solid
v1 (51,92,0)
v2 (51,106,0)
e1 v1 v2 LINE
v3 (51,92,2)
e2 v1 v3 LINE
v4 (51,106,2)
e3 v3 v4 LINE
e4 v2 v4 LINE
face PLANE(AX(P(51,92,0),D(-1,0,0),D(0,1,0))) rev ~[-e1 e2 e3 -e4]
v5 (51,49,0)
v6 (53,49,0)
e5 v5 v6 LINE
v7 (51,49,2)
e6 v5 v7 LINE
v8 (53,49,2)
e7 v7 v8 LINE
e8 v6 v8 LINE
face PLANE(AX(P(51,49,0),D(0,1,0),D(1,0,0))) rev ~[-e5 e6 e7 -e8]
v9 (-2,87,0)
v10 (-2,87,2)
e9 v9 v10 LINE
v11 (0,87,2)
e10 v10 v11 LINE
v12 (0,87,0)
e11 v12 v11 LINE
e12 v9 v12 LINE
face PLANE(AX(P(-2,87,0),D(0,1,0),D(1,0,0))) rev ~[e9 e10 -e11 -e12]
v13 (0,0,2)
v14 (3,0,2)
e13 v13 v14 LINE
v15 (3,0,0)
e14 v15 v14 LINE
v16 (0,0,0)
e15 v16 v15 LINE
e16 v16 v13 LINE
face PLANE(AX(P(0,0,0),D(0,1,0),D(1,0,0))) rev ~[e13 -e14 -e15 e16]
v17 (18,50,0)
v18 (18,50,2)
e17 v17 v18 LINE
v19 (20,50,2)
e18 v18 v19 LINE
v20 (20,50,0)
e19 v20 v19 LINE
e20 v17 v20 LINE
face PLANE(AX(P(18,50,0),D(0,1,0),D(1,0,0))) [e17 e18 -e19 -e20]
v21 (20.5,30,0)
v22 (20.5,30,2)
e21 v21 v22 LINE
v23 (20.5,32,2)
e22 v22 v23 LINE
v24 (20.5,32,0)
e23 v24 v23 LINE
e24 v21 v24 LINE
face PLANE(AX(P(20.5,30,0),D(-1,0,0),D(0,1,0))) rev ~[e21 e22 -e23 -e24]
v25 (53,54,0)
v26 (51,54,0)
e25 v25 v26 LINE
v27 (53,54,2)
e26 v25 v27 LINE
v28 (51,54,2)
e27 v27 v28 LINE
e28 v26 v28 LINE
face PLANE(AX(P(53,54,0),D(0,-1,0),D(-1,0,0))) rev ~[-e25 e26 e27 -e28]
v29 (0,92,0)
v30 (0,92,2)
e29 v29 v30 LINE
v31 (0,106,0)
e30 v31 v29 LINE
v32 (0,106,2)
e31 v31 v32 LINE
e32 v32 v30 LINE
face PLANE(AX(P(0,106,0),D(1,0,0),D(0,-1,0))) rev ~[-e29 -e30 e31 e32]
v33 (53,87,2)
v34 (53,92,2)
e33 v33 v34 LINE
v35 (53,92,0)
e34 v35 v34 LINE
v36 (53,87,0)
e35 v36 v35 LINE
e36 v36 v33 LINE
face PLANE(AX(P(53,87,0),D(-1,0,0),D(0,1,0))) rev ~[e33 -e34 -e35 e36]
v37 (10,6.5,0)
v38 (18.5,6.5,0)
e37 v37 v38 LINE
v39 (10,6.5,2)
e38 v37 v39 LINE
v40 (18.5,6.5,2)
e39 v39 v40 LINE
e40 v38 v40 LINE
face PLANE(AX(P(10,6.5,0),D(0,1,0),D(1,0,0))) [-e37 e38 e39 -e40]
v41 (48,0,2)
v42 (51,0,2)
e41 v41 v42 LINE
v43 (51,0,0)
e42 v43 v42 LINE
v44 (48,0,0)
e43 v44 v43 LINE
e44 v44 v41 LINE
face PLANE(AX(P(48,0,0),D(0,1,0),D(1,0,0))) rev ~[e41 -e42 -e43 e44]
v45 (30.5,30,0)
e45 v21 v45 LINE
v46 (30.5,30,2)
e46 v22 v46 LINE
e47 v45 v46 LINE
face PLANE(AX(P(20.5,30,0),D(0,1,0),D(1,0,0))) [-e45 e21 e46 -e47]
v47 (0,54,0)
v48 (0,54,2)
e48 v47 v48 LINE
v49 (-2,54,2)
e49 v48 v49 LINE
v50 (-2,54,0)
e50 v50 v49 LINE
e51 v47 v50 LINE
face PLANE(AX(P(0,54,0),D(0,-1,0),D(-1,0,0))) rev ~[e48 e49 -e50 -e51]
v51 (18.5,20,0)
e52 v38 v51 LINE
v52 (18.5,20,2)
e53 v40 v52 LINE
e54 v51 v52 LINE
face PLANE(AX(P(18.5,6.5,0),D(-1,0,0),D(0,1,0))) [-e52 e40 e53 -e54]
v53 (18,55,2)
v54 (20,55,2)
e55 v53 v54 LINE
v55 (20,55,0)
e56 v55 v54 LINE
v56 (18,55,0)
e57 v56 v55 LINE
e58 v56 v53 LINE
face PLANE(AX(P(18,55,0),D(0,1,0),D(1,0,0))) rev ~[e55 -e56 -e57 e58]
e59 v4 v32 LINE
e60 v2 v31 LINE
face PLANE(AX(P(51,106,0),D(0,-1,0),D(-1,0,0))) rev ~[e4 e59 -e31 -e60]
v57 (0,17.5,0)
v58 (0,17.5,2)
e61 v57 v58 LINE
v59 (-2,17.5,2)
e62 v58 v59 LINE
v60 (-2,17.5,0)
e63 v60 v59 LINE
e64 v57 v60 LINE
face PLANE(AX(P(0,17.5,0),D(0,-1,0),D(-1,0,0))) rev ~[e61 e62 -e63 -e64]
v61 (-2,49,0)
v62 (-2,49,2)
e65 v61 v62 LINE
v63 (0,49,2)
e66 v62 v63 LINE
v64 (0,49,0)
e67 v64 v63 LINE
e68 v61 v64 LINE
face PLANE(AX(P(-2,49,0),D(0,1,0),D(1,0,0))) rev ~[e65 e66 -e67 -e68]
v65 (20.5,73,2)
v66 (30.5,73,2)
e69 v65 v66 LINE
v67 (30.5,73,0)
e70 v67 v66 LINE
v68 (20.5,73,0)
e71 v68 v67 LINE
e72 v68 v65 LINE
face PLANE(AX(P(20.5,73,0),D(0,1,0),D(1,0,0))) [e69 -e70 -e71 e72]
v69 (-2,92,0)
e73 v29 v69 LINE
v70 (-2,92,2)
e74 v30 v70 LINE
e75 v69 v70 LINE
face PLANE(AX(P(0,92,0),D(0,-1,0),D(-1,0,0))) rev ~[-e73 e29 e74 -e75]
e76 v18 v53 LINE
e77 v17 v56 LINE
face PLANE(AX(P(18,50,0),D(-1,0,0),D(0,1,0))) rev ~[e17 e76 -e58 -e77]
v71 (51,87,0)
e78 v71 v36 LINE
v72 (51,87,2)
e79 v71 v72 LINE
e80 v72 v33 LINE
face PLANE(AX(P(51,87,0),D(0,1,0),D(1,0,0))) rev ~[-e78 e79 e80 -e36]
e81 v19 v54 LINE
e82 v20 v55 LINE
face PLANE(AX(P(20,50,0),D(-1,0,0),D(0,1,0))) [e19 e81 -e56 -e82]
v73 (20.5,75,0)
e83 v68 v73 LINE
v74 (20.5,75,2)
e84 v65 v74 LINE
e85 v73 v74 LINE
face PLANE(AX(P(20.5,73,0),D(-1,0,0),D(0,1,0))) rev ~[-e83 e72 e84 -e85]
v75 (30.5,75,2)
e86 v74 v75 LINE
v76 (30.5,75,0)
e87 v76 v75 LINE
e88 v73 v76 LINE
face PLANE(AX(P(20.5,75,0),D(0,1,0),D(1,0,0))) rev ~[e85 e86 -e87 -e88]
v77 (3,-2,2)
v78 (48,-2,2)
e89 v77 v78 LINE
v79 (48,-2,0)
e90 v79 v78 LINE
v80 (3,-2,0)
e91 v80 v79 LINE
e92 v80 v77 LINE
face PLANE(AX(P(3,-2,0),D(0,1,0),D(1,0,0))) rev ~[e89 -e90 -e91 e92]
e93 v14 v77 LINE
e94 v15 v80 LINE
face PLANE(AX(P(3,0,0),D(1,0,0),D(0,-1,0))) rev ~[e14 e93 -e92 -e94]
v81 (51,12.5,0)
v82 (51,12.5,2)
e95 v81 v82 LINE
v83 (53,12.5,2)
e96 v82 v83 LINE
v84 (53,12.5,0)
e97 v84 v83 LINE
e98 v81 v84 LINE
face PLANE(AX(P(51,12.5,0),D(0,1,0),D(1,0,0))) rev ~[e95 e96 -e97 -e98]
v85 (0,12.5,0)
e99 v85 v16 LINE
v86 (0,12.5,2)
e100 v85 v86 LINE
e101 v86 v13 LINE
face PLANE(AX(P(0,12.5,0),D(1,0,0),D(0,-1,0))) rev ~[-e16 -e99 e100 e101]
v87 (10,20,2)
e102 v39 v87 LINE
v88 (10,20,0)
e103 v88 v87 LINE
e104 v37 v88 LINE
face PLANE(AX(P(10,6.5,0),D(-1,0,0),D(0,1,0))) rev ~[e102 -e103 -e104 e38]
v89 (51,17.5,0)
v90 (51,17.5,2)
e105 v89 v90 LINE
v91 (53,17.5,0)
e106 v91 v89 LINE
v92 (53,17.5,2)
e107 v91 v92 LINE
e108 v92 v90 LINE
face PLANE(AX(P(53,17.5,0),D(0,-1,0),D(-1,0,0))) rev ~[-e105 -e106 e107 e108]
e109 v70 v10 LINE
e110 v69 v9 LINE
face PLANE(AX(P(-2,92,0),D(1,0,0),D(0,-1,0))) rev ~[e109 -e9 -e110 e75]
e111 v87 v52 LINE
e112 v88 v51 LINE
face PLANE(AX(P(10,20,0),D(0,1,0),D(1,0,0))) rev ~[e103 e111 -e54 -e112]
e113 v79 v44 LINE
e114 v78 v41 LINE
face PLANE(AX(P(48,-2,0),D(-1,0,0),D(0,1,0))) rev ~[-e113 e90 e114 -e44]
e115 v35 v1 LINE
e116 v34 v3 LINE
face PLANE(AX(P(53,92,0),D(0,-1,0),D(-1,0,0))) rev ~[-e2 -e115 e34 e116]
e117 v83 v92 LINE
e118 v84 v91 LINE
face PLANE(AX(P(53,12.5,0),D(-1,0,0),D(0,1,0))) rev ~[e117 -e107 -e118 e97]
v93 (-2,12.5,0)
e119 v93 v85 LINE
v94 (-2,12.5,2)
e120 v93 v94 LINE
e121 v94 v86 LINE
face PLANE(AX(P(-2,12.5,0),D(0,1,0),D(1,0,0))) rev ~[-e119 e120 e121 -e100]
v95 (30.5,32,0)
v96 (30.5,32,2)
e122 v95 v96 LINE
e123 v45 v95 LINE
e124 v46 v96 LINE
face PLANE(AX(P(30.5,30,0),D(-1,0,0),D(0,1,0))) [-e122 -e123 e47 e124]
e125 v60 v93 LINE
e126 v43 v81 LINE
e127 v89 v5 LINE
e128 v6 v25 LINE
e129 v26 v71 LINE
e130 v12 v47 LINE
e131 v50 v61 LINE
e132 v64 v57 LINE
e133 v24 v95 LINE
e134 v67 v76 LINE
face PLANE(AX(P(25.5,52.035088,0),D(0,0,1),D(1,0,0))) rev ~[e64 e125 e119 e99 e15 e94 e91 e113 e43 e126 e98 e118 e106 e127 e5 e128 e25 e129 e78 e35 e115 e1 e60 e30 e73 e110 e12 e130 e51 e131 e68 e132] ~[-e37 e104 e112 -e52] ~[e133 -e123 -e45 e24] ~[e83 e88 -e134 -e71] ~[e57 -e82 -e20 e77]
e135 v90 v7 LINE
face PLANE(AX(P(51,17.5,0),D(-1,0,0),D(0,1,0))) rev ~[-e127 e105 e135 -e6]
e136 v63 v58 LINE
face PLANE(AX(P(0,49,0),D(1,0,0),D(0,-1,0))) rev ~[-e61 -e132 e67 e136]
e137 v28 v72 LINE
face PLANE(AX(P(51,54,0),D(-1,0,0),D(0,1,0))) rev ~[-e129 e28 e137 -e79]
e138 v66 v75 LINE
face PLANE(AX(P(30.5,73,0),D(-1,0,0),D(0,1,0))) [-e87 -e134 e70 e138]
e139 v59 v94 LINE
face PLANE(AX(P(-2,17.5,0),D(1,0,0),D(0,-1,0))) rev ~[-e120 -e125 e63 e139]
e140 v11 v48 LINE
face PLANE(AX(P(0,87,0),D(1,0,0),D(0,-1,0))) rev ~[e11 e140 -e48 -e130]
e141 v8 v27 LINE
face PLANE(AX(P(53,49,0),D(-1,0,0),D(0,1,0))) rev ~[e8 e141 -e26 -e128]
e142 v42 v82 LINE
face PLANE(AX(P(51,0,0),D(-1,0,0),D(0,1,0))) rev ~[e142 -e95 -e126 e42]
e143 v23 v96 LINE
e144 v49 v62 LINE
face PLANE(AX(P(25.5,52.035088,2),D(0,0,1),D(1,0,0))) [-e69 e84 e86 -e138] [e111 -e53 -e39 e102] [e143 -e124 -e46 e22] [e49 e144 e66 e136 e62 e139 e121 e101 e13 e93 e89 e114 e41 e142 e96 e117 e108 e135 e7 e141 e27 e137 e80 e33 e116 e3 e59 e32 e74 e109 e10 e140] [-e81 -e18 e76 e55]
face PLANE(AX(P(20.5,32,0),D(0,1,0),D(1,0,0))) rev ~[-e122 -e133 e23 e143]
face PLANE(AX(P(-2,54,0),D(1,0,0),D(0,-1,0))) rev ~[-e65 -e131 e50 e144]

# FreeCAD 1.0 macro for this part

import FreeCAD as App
import Part
import Sketcher

V = App.Vector


def add_polygon(sketch, points):
    """Adds a closed chain of lines whose ends are joined by coincident constraints."""
    first, n = sketch.GeometryCount, len(points)
    for a, b in zip(points, points[1:] + points[:1]):
        sketch.addGeometry(Part.LineSegment(App.Vector(*a, 0), App.Vector(*b, 0)), False)
    for i in range(n):
        sketch.addConstraint(Sketcher.Constraint("Coincident", first + i, 2, first + (i + 1) % n, 1))

doc = App.newDocument("Part")
body = doc.addObject("PartDesign::Body", "Body")

sketch1 = doc.addObject("Sketcher::SketchObject", "Sketch")
body.addObject(sketch1)
sketch1.AttachmentSupport = (doc.XY_Plane, [""])
sketch1.MapMode = "FlatFace"
add_polygon(sketch1, [(0, 0), (3, 0), (3, -2), (48, -2), (48, 0), (51, 0), (51, 12.5), (53, 12.5), (53, 17.5), (51, 17.5), (51, 49), (53, 49), (53, 54), (51, 54), (51, 87), (53, 87), (53, 92), (51, 92), (51, 106), (0, 106), (0, 92), (-2, 92), (-2, 87), (0, 87), (0, 54), (-2, 54), (-2, 49), (0, 49), (0, 17.5), (-2, 17.5), (-2, 12.5), (0, 12.5)])
add_polygon(sketch1, [(18.5, 6.5), (10, 6.5), (10, 20), (18.5, 20)])
add_polygon(sketch1, [(30.5, 30), (20.5, 30), (20.5, 32), (30.5, 32)])
add_polygon(sketch1, [(20, 50), (18, 50), (18, 55), (20, 55)])
add_polygon(sketch1, [(30.5, 73), (20.5, 73), (20.5, 75), (30.5, 75)])
sketch1.addConstraint(Sketcher.Constraint("Horizontal", 0))
sketch1.addConstraint(Sketcher.Constraint("Vertical", 1))
sketch1.addConstraint(Sketcher.Constraint("Horizontal", 2))
sketch1.addConstraint(Sketcher.Constraint("Vertical", 3))
sketch1.addConstraint(Sketcher.Constraint("Horizontal", 4))
sketch1.addConstraint(Sketcher.Constraint("Vertical", 5))
sketch1.addConstraint(Sketcher.Constraint("Horizontal", 6))
sketch1.addConstraint(Sketcher.Constraint("Vertical", 7))
sketch1.addConstraint(Sketcher.Constraint("Horizontal", 8))
sketch1.addConstraint(Sketcher.Constraint("Vertical", 9))
sketch1.addConstraint(Sketcher.Constraint("Horizontal", 10))
sketch1.addConstraint(Sketcher.Constraint("Vertical", 11))
sketch1.addConstraint(Sketcher.Constraint("Horizontal", 12))
sketch1.addConstraint(Sketcher.Constraint("Vertical", 13))
sketch1.addConstraint(Sketcher.Constraint("Horizontal", 14))
sketch1.addConstraint(Sketcher.Constraint("Vertical", 15))
sketch1.addConstraint(Sketcher.Constraint("Horizontal", 16))
sketch1.addConstraint(Sketcher.Constraint("Vertical", 17))
sketch1.addConstraint(Sketcher.Constraint("Horizontal", 18))
sketch1.addConstraint(Sketcher.Constraint("Vertical", 19))
sketch1.addConstraint(Sketcher.Constraint("Horizontal", 20))
sketch1.addConstraint(Sketcher.Constraint("Vertical", 21))
sketch1.addConstraint(Sketcher.Constraint("Horizontal", 22))
sketch1.addConstraint(Sketcher.Constraint("Vertical", 23))
sketch1.addConstraint(Sketcher.Constraint("Horizontal", 24))
sketch1.addConstraint(Sketcher.Constraint("Vertical", 25))
sketch1.addConstraint(Sketcher.Constraint("Horizontal", 26))
sketch1.addConstraint(Sketcher.Constraint("Vertical", 27))
sketch1.addConstraint(Sketcher.Constraint("Horizontal", 28))
sketch1.addConstraint(Sketcher.Constraint("Vertical", 29))
sketch1.addConstraint(Sketcher.Constraint("Horizontal", 30))
sketch1.addConstraint(Sketcher.Constraint("Vertical", 31))
sketch1.addConstraint(Sketcher.Constraint("Horizontal", 32))
sketch1.addConstraint(Sketcher.Constraint("Vertical", 33))
sketch1.addConstraint(Sketcher.Constraint("Horizontal", 34))
sketch1.addConstraint(Sketcher.Constraint("Vertical", 35))
sketch1.addConstraint(Sketcher.Constraint("Horizontal", 36))
sketch1.addConstraint(Sketcher.Constraint("Vertical", 37))
sketch1.addConstraint(Sketcher.Constraint("Horizontal", 38))
sketch1.addConstraint(Sketcher.Constraint("Vertical", 39))
sketch1.addConstraint(Sketcher.Constraint("Horizontal", 40))
sketch1.addConstraint(Sketcher.Constraint("Vertical", 41))
sketch1.addConstraint(Sketcher.Constraint("Horizontal", 42))
sketch1.addConstraint(Sketcher.Constraint("Vertical", 43))
sketch1.addConstraint(Sketcher.Constraint("Horizontal", 44))
sketch1.addConstraint(Sketcher.Constraint("Vertical", 45))
sketch1.addConstraint(Sketcher.Constraint("Horizontal", 46))
sketch1.addConstraint(Sketcher.Constraint("Vertical", 47))
sketch1.addConstraint(Sketcher.Constraint("Coincident", 31, 2, -1, 1))
sketch1.addConstraint(Sketcher.Constraint("PointOnObject", 3, 2, -1))
sketch1.addConstraint(Sketcher.Constraint("PointOnObject", 18, 2, -2))
sketch1.addConstraint(Sketcher.Constraint("PointOnObject", 22, 2, -2))
sketch1.addConstraint(Sketcher.Constraint("PointOnObject", 26, 2, -2))
sketch1.addConstraint(Sketcher.Constraint("Horizontal", 16, 2, 19, 2))
sketch1.addConstraint(Sketcher.Constraint("Horizontal", 14, 2, 21, 2))
sketch1.addConstraint(Sketcher.Constraint("Horizontal", 12, 2, 23, 2))
sketch1.addConstraint(Sketcher.Constraint("Horizontal", 10, 2, 25, 2))
sketch1.addConstraint(Sketcher.Constraint("Horizontal", 8, 2, 27, 2))
sketch1.addConstraint(Sketcher.Constraint("Horizontal", 6, 2, 29, 2))
sketch1.addConstraint(Sketcher.Constraint("Vertical", 5, 2, 8, 2))
sketch1.addConstraint(Sketcher.Constraint("Vertical", 7, 2, 10, 2))
sketch1.addConstraint(Sketcher.Constraint("Vertical", 9, 2, 12, 2))
sketch1.addConstraint(Sketcher.Constraint("Vertical", 11, 2, 14, 2))
sketch1.addConstraint(Sketcher.Constraint("Vertical", 13, 2, 16, 2))
sketch1.addConstraint(Sketcher.Constraint("Vertical", 21, 2, 24, 2))
sketch1.addConstraint(Sketcher.Constraint("Vertical", 25, 2, 28, 2))
sketch1.addConstraint(Sketcher.Constraint("Vertical", 37, 2, 44, 2))
sketch1.addConstraint(Sketcher.Constraint("Vertical", 39, 2, 46, 2))
sketch1.addConstraint(Sketcher.Constraint("Equal", 0, 4))
sketch1.addConstraint(Sketcher.Constraint("Equal", 16, 20))
sketch1.addConstraint(Sketcher.Constraint("Equal", 30, 40))
sketch1.addConstraint(Sketcher.Constraint("Equal", 42, 1))
sketch1.addConstraint(Sketcher.Constraint("Equal", 7, 11))
sketch1.addConstraint(Sketcher.Constraint("Equal", 11, 15))
sketch1.addConstraint(Sketcher.Constraint("Equal", 3, 37))
sketch1.addConstraint(Sketcher.Constraint("Equal", 29, 41))
sketch1.addConstraint(Sketcher.Constraint("Equal", 39, 45))
sketch1.addConstraint(Sketcher.Constraint("DistanceX", 0, 1, 0, 2, 3.0))
sketch1.addConstraint(Sketcher.Constraint("DistanceX", 2, 1, 2, 2, 45.0))
sketch1.addConstraint(Sketcher.Constraint("DistanceX", 6, 1, 6, 2, 2.0))
sketch1.addConstraint(Sketcher.Constraint("DistanceX", 36, 2, 36, 1, 10.0))
sketch1.addConstraint(Sketcher.Constraint("DistanceY", 7, 1, 7, 2, 5.0))
sketch1.addConstraint(Sketcher.Constraint("DistanceY", 13, 1, 13, 2, 33.0))
sketch1.addConstraint(Sketcher.Constraint("DistanceY", 17, 1, 17, 2, 14.0))
sketch1.addConstraint(Sketcher.Constraint("DistanceX", 32, 2, 32, 1, 8.5))
sketch1.addConstraint(Sketcher.Constraint("DistanceY", 5, 1, 5, 2, 12.5))
sketch1.addConstraint(Sketcher.Constraint("DistanceY", 9, 1, 9, 2, 31.5))
sketch1.addConstraint(Sketcher.Constraint("DistanceY", 33, 1, 33, 2, 13.5))
sketch1.addConstraint(Sketcher.Constraint("DistanceX", -1, 1, 32, 2, 10.0))
sketch1.addConstraint(Sketcher.Constraint("DistanceY", -1, 1, 33, 2, 20.0))
sketch1.addConstraint(Sketcher.Constraint("DistanceY", -1, 1, 36, 2, 30.0))
sketch1.addConstraint(Sketcher.Constraint("DistanceX", -1, 1, 40, 2, 18.0))
sketch1.addConstraint(Sketcher.Constraint("DistanceY", -1, 1, 40, 2, 50.0))
sketch1.addConstraint(Sketcher.Constraint("DistanceY", -1, 1, 44, 2, 73.0))
sketch1.addConstraint(Sketcher.Constraint("DistanceX", 34, 2, 36, 2, 2.0))
pad1 = doc.addObject("PartDesign::Pad", "Pad")
body.addObject(pad1)
pad1.Profile = sketch1
pad1.Length = 2

doc.recompute()
